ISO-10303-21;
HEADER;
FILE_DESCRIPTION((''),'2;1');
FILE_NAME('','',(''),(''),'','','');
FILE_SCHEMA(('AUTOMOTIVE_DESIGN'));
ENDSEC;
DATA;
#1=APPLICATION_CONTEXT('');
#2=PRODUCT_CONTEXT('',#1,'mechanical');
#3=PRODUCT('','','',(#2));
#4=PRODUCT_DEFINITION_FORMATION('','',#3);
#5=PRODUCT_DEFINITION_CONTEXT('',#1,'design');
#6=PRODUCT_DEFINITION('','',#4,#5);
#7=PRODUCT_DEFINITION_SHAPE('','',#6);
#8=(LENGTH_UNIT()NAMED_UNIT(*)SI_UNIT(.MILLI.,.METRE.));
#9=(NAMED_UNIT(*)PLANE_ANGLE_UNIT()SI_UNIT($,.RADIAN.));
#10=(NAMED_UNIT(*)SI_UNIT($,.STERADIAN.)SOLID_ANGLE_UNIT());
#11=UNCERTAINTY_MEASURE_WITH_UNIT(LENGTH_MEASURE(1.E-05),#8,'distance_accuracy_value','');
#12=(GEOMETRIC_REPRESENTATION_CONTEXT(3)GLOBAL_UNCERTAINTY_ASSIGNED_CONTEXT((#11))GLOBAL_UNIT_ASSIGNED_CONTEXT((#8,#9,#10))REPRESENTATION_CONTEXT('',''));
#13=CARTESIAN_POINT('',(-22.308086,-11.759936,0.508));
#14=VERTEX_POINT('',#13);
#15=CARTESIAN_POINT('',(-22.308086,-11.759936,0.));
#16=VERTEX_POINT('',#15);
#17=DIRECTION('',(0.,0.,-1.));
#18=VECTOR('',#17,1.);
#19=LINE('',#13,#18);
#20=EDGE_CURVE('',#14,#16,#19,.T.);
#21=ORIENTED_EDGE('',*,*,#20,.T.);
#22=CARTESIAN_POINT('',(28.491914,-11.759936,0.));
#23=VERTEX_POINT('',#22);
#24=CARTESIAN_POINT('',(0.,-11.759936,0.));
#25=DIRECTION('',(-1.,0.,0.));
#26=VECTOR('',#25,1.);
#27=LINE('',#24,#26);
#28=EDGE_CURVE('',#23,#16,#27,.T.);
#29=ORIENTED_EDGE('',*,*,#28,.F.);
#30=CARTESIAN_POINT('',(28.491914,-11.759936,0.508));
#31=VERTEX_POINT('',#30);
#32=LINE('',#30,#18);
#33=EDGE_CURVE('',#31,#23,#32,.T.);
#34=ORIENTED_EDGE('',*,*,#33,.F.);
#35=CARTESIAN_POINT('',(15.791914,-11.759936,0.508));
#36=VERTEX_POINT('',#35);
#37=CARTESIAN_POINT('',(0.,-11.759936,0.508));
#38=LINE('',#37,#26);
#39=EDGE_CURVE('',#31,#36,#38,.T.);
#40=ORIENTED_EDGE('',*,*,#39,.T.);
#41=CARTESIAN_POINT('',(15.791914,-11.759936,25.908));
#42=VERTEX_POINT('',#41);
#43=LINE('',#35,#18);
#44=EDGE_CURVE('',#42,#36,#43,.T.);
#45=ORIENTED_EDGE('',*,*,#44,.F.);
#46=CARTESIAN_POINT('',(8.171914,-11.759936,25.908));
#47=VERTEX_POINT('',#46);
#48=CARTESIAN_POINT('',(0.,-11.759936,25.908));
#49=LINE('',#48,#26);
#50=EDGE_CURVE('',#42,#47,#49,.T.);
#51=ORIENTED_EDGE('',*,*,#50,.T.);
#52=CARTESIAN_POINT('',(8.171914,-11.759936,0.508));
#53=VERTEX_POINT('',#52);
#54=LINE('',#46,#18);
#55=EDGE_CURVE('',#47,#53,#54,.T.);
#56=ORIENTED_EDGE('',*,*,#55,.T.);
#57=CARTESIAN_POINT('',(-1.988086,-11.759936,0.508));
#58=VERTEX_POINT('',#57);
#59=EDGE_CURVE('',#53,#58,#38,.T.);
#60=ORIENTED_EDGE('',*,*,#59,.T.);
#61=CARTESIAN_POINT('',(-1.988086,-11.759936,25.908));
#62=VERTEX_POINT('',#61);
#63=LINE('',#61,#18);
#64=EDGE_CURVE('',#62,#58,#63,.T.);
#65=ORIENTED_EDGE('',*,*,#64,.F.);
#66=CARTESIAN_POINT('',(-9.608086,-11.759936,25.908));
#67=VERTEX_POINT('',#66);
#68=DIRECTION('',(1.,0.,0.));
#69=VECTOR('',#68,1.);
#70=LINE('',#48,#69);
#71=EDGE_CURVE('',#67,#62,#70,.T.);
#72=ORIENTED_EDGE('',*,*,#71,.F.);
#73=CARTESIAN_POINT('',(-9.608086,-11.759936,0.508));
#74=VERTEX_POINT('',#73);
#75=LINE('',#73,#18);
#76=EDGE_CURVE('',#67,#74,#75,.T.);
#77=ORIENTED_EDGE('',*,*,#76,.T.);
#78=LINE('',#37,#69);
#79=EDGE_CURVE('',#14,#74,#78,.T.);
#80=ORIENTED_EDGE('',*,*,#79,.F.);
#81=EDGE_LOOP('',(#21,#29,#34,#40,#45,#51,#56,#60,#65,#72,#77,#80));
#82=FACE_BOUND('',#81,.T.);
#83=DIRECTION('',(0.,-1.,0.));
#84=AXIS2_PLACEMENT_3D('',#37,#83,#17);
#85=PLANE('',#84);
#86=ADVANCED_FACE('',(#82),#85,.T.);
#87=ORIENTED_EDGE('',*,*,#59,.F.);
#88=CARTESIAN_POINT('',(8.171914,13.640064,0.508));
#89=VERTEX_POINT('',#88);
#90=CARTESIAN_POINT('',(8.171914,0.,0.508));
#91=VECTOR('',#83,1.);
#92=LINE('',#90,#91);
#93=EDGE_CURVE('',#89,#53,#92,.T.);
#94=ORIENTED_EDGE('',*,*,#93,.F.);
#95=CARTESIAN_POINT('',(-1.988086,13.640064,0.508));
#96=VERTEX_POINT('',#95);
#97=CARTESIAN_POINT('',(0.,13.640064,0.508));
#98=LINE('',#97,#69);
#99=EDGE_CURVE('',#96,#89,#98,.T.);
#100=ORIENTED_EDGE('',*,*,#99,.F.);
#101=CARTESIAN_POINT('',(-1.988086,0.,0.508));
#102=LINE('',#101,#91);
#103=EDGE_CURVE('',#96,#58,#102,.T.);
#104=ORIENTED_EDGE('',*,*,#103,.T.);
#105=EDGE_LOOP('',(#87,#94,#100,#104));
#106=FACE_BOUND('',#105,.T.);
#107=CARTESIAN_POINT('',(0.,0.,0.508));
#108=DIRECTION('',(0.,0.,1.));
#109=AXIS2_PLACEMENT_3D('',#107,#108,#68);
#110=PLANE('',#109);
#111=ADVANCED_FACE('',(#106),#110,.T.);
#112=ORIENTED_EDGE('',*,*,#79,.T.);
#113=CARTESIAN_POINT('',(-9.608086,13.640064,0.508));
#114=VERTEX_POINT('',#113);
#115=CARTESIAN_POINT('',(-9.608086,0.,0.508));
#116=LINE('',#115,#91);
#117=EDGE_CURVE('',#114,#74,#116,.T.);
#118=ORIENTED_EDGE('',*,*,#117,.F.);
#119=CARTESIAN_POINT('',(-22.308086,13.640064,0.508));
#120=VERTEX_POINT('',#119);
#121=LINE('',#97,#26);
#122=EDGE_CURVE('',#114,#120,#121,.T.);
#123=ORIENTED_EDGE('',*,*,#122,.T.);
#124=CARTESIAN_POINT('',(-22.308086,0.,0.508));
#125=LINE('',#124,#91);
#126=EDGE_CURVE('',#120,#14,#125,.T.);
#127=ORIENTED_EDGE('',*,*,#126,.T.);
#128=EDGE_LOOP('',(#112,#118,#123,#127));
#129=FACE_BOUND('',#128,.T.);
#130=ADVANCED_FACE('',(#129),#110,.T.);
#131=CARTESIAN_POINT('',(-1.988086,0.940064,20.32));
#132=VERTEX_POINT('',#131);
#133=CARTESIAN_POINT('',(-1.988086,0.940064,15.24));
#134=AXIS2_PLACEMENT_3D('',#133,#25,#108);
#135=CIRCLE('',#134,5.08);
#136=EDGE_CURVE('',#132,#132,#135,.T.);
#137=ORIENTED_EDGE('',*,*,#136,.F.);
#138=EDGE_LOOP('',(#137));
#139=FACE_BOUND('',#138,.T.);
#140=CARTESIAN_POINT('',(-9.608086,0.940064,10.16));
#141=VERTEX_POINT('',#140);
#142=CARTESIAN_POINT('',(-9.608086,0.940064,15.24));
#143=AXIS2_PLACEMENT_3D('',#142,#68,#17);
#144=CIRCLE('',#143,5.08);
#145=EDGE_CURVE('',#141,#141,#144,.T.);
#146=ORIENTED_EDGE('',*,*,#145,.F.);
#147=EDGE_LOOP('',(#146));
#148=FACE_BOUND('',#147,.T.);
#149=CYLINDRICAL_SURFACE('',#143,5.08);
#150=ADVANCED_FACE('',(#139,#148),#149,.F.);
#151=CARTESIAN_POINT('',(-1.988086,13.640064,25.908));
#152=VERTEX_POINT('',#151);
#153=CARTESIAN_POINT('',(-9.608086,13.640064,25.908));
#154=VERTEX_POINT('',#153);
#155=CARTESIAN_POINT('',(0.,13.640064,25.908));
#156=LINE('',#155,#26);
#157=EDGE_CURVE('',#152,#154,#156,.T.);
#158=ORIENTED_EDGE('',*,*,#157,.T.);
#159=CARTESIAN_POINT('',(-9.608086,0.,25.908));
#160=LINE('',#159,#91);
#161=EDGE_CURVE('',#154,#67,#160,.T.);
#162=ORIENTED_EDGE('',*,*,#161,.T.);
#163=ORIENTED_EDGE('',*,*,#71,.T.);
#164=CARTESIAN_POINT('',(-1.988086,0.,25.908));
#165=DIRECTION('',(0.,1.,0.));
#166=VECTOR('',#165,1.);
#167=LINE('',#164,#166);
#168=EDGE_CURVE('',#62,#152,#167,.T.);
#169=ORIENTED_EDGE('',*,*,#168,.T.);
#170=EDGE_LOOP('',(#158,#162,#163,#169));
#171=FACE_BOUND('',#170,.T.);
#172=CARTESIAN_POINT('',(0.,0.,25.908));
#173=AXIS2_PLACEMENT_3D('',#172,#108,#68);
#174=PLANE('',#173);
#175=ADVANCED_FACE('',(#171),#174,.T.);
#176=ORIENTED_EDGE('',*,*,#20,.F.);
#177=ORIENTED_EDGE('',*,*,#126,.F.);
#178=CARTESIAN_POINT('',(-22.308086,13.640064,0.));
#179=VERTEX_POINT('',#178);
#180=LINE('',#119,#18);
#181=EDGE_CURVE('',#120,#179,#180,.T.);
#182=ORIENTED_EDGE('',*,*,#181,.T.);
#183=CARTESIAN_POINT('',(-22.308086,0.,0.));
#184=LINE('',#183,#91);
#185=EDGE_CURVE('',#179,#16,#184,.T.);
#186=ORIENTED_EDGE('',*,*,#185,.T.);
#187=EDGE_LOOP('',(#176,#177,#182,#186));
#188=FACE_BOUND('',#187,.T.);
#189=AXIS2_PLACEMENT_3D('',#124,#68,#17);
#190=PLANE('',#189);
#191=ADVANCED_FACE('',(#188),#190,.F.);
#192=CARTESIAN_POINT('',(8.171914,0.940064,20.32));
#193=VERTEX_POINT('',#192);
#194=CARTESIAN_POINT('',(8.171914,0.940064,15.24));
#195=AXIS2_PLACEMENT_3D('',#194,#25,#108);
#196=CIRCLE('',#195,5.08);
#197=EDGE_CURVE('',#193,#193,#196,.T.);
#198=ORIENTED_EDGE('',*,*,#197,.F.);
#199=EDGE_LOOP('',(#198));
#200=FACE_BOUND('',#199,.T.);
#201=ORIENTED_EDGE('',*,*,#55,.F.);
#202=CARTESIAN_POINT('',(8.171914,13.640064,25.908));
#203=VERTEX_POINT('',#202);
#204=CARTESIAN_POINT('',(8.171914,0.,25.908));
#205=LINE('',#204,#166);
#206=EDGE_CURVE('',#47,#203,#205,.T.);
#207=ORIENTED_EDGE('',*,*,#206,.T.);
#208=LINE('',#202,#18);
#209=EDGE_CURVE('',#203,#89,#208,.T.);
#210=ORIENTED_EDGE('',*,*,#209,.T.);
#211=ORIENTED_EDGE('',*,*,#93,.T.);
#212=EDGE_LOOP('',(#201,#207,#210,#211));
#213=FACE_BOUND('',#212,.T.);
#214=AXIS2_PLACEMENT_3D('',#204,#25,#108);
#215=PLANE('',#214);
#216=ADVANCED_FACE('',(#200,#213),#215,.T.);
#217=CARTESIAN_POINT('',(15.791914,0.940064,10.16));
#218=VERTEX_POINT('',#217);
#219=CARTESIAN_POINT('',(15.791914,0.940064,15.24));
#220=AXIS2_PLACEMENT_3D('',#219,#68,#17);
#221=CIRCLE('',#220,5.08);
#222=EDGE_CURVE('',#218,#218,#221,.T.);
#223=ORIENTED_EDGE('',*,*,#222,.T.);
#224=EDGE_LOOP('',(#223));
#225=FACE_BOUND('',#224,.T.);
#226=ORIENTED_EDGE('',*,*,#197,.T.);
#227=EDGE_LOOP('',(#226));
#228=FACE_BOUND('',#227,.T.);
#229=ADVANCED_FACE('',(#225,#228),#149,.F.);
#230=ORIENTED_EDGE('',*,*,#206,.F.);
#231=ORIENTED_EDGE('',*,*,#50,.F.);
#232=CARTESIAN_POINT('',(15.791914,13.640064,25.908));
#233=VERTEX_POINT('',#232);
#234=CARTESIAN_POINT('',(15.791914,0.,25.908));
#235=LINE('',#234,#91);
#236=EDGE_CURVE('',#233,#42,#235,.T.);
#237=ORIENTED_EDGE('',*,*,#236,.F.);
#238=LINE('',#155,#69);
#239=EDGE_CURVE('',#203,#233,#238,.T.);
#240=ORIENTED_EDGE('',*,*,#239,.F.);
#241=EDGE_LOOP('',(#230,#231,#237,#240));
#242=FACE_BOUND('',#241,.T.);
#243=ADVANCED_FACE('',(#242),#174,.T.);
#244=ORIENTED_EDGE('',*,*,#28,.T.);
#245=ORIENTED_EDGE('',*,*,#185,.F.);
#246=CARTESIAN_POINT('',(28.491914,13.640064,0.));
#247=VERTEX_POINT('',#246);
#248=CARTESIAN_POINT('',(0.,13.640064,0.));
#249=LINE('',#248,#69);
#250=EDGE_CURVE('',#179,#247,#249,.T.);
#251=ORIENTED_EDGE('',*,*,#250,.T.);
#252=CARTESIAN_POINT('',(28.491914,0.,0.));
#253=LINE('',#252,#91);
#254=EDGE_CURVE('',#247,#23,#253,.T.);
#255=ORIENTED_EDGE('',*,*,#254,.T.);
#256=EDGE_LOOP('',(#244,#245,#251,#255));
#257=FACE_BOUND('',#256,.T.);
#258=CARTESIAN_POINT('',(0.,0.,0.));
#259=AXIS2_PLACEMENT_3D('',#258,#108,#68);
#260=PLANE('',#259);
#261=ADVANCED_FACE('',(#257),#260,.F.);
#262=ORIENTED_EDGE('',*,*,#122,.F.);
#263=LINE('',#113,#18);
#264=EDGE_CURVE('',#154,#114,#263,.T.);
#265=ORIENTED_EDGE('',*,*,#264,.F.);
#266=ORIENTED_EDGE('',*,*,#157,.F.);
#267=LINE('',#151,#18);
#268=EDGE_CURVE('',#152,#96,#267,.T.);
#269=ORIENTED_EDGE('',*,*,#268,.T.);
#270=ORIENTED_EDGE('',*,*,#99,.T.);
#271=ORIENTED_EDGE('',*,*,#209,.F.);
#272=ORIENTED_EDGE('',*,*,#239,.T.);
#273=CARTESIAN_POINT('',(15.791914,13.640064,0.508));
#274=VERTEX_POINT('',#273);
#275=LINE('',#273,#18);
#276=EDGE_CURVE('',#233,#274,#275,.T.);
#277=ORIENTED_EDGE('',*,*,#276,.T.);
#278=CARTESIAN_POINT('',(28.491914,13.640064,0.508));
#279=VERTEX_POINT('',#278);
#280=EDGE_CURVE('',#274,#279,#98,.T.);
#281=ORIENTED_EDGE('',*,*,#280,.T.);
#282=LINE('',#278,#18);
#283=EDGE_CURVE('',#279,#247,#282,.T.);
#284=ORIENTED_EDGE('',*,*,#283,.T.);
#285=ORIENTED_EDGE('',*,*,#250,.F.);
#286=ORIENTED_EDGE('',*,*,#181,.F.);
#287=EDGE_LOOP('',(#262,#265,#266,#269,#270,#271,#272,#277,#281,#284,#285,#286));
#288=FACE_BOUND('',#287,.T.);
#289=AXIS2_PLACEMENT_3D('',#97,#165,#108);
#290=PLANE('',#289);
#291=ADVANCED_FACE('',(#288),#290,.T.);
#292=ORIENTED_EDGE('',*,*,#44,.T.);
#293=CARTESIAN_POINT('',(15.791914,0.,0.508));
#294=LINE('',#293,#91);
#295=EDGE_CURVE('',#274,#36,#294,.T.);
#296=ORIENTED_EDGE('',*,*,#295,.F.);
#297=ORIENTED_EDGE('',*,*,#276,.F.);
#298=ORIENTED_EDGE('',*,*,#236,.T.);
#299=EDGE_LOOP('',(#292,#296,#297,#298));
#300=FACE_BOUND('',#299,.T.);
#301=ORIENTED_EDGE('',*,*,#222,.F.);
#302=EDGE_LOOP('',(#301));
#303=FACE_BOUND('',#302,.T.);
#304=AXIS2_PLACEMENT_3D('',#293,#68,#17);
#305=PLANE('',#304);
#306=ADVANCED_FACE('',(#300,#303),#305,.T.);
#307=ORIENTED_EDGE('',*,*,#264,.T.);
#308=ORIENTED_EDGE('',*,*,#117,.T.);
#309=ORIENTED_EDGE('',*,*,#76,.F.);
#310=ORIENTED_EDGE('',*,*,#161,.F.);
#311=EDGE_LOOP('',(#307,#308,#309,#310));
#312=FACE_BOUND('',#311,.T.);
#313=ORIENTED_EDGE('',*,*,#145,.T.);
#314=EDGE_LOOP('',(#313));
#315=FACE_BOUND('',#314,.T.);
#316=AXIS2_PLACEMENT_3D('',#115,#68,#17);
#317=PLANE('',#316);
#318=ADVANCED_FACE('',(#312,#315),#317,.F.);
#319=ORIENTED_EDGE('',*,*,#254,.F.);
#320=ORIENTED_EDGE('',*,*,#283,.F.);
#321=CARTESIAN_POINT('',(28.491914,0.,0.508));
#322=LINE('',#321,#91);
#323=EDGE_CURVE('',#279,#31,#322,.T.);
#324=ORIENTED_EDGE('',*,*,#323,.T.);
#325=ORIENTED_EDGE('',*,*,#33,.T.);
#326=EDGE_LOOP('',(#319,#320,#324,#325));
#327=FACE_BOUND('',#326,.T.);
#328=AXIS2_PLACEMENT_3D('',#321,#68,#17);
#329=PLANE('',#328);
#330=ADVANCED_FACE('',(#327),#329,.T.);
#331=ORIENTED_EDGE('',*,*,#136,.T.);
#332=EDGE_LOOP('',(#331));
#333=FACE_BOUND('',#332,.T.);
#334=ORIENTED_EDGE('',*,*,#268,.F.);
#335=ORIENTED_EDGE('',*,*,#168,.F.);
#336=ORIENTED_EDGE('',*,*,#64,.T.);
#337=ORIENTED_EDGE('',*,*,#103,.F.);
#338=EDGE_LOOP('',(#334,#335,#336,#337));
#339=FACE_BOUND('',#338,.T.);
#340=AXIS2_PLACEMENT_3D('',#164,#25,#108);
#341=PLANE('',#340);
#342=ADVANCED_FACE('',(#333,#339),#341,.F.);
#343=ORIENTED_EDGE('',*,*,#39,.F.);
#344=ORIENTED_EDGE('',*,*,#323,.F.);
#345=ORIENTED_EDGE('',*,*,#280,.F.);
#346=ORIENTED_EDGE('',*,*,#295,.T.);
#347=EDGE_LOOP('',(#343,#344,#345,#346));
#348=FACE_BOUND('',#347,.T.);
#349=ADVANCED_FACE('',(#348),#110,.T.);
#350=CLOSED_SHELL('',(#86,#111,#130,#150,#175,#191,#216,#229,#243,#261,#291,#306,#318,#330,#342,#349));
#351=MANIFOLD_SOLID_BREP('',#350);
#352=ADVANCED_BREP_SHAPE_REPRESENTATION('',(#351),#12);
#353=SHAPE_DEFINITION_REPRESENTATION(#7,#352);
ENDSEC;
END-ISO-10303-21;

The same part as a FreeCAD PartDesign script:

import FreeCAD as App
import Part
import Sketcher
from FreeCAD import Vector
Q = App.Units.Quantity

doc = App.newDocument("Part")
body = doc.addObject("PartDesign::Body", "Body")

sketch1 = body.newObject("Sketcher::SketchObject", "Sketch")
sketch1.AttachmentSupport = (doc.getObject("XY_Plane"), [""])
sketch1.MapMode = "FlatFace"
sketch1.addGeometry(Part.LineSegment(Vector(-10, 14, 0), Vector(-10, -12, 0)), False)
sketch1.addGeometry(Part.LineSegment(Vector(-10, -12, 0), Vector(16, -12, 0)), False)
sketch1.addGeometry(Part.LineSegment(Vector(16, -12, 0), Vector(16, 14, 0)), False)
sketch1.addGeometry(Part.LineSegment(Vector(16, 14, 0), Vector(-10, 14, 0)), False)
sketch1.addConstraint(Sketcher.Constraint("Coincident", 0, 2, 1, 1))
sketch1.addConstraint(Sketcher.Constraint("Coincident", 1, 2, 2, 1))
sketch1.addConstraint(Sketcher.Constraint("Coincident", 2, 2, 3, 1))
sketch1.addConstraint(Sketcher.Constraint("Coincident", 3, 2, 0, 1))
sketch1.addConstraint(Sketcher.Constraint("Vertical", 0))
sketch1.addConstraint(Sketcher.Constraint("Horizontal", 1))
sketch1.addConstraint(Sketcher.Constraint("Vertical", 2))
sketch1.addConstraint(Sketcher.Constraint("Horizontal", 3))
sketch1.addConstraint(Sketcher.Constraint("Equal", 3, 0))
sketch1.addConstraint(Sketcher.Constraint("DistanceX", 1, 1, 1, 2, Q("1 in")))
sketch1.addConstraint(Sketcher.Constraint("DistanceX", 0, 2, -1, 1, 9.608086))
sketch1.addConstraint(Sketcher.Constraint("DistanceY", 0, 2, -1, 1, 11.759936))
pad1 = body.newObject("PartDesign::Pad", "Pad")
pad1.Profile = sketch1
pad1.Length = Q("0.02 in")

sketch2 = body.newObject("Sketcher::SketchObject", "Sketch001")
sketch2.AttachmentSupport = (doc.getObject("XY_Plane"), [""])
sketch2.MapMode = "FlatFace"
sketch2.addGeometry(Part.LineSegment(Vector(8, 14, 0), Vector(8, -12, 0)), False)
sketch2.addGeometry(Part.LineSegment(Vector(8, -12, 0), Vector(16, -12, 0)), False)
sketch2.addGeometry(Part.LineSegment(Vector(16, -12, 0), Vector(16, 14, 0)), False)
sketch2.addGeometry(Part.LineSegment(Vector(16, 14, 0), Vector(8, 14, 0)), False)
sketch2.addGeometry(Part.LineSegment(Vector(-10, 14, 0), Vector(-10, -12, 0)), False)
sketch2.addGeometry(Part.LineSegment(Vector(-10, -12, 0), Vector(-2, -12, 0)), False)
sketch2.addGeometry(Part.LineSegment(Vector(-2, -12, 0), Vector(-2, 14, 0)), False)
sketch2.addGeometry(Part.LineSegment(Vector(-2, 14, 0), Vector(-10, 14, 0)), False)
sketch2.addConstraint(Sketcher.Constraint("Coincident", 0, 2, 1, 1))
sketch2.addConstraint(Sketcher.Constraint("Coincident", 1, 2, 2, 1))
sketch2.addConstraint(Sketcher.Constraint("Coincident", 2, 2, 3, 1))
sketch2.addConstraint(Sketcher.Constraint("Coincident", 3, 2, 0, 1))
sketch2.addConstraint(Sketcher.Constraint("Coincident", 4, 2, 5, 1))
sketch2.addConstraint(Sketcher.Constraint("Coincident", 5, 2, 6, 1))
sketch2.addConstraint(Sketcher.Constraint("Coincident", 6, 2, 7, 1))
sketch2.addConstraint(Sketcher.Constraint("Coincident", 7, 2, 4, 1))
sketch2.addConstraint(Sketcher.Constraint("Vertical", 0))
sketch2.addConstraint(Sketcher.Constraint("Horizontal", 1))
sketch2.addConstraint(Sketcher.Constraint("Vertical", 2))
sketch2.addConstraint(Sketcher.Constraint("Horizontal", 3))
sketch2.addConstraint(Sketcher.Constraint("Vertical", 4))
sketch2.addConstraint(Sketcher.Constraint("Horizontal", 5))
sketch2.addConstraint(Sketcher.Constraint("Vertical", 6))
sketch2.addConstraint(Sketcher.Constraint("Horizontal", 7))
sketch2.addConstraint(Sketcher.Constraint("Horizontal", 1, 2, 4, 2))
sketch2.addConstraint(Sketcher.Constraint("Horizontal", 3, 2, 6, 2))
sketch2.addConstraint(Sketcher.Constraint("Equal", 3, 5))
sketch2.addConstraint(Sketcher.Constraint("DistanceY", 0, 2, 0, 1, Q("1 in")))
sketch2.addConstraint(Sketcher.Constraint("DistanceX", 1, 1, 1, 2, Q("0.3 in")))
sketch2.addConstraint(Sketcher.Constraint("DistanceX", 4, 2, 1, 2, Q("1 in")))
sketch2.addConstraint(Sketcher.Constraint("DistanceX", -1, 1, 0, 2, 8.171914))
sketch2.addConstraint(Sketcher.Constraint("DistanceY", 0, 2, -1, 1, 11.759936))
pad2 = body.newObject("PartDesign::Pad", "Pad001")
pad2.Profile = sketch2
pad2.Length = Q("1.02 in")

sketch3 = body.newObject("Sketcher::SketchObject", "Sketch002")
sketch3.AttachmentSupport = (doc.getObject("YZ_Plane"), [""])
sketch3.MapMode = "FlatFace"
sketch3.AttachmentOffset = App.Placement(Vector(0, 0, 15.791914), App.Rotation())
sketch3.addGeometry(Part.Circle(Vector(1, 15, 0), Vector(0, 0, 1), 5), False)
sketch3.addConstraint(Sketcher.Constraint("Diameter", 0, Q("0.4 in")))
sketch3.addConstraint(Sketcher.Constraint("DistanceY", -1, 1, 0, 3, Q("0.6 in")))
sketch3.addConstraint(Sketcher.Constraint("DistanceX", -1, 1, 0, 3, 0.940064))
pocket1 = body.newObject("PartDesign::Pocket", "Pocket")
pocket1.Profile = sketch3
pocket1.Length = Q("1 in")

sketch4 = body.newObject("Sketcher::SketchObject", "Sketch003")
sketch4.AttachmentSupport = (doc.getObject("XY_Plane"), [""])
sketch4.MapMode = "FlatFace"
sketch4.addGeometry(Part.LineSegment(Vector(-22, 14, 0), Vector(-22, -12, 0)), False)
sketch4.addGeometry(Part.LineSegment(Vector(-22, -12, 0), Vector(-10, -12, 0)), False)
sketch4.addGeometry(Part.LineSegment(Vector(-10, -12, 0), Vector(-10, 14, 0)), False)
sketch4.addGeometry(Part.LineSegment(Vector(-10, 14, 0), Vector(-22, 14, 0)), False)
sketch4.addGeometry(Part.LineSegment(Vector(16, 14, 0), Vector(16, -12, 0)), False)
sketch4.addGeometry(Part.LineSegment(Vector(16, -12, 0), Vector(28, -12, 0)), False)
sketch4.addGeometry(Part.LineSegment(Vector(28, -12, 0), Vector(28, 14, 0)), False)
sketch4.addGeometry(Part.LineSegment(Vector(28, 14, 0), Vector(16, 14, 0)), False)
sketch4.addConstraint(Sketcher.Constraint("Coincident", 0, 2, 1, 1))
sketch4.addConstraint(Sketcher.Constraint("Coincident", 1, 2, 2, 1))
sketch4.addConstraint(Sketcher.Constraint("Coincident", 2, 2, 3, 1))
sketch4.addConstraint(Sketcher.Constraint("Coincident", 3, 2, 0, 1))
sketch4.addConstraint(Sketcher.Constraint("Coincident", 4, 2, 5, 1))
sketch4.addConstraint(Sketcher.Constraint("Coincident", 5, 2, 6, 1))
sketch4.addConstraint(Sketcher.Constraint("Coincident", 6, 2, 7, 1))
sketch4.addConstraint(Sketcher.Constraint("Coincident", 7, 2, 4, 1))
sketch4.addConstraint(Sketcher.Constraint("Vertical", 0))
sketch4.addConstraint(Sketcher.Constraint("Horizontal", 1))
sketch4.addConstraint(Sketcher.Constraint("Vertical", 2))
sketch4.addConstraint(Sketcher.Constraint("Horizontal", 3))
sketch4.addConstraint(Sketcher.Constraint("Vertical", 4))
sketch4.addConstraint(Sketcher.Constraint("Horizontal", 5))
sketch4.addConstraint(Sketcher.Constraint("Vertical", 6))
sketch4.addConstraint(Sketcher.Constraint("Horizontal", 7))
sketch4.addConstraint(Sketcher.Constraint("Horizontal", 1, 2, 4, 2))
sketch4.addConstraint(Sketcher.Constraint("Horizontal", 3, 2, 6, 2))
sketch4.addConstraint(Sketcher.Constraint("Equal", 3, 5))
sketch4.addConstraint(Sketcher.Constraint("DistanceY", 0, 2, 0, 1, Q("1 in")))
sketch4.addConstraint(Sketcher.Constraint("DistanceX", 1, 1, 1, 2, Q("0.5 in")))
sketch4.addConstraint(Sketcher.Constraint("DistanceX", 1, 2, 4, 2, Q("1 in")))
sketch4.addConstraint(Sketcher.Constraint("DistanceX", 0, 2, -1, 1, 22.308086))
sketch4.addConstraint(Sketcher.Constraint("DistanceY", 0, 2, -1, 1, 11.759936))
pad3 = body.newObject("PartDesign::Pad", "Pad002")
pad3.Profile = sketch4
pad3.Length = Q("0.02 in")

doc.recompute()
